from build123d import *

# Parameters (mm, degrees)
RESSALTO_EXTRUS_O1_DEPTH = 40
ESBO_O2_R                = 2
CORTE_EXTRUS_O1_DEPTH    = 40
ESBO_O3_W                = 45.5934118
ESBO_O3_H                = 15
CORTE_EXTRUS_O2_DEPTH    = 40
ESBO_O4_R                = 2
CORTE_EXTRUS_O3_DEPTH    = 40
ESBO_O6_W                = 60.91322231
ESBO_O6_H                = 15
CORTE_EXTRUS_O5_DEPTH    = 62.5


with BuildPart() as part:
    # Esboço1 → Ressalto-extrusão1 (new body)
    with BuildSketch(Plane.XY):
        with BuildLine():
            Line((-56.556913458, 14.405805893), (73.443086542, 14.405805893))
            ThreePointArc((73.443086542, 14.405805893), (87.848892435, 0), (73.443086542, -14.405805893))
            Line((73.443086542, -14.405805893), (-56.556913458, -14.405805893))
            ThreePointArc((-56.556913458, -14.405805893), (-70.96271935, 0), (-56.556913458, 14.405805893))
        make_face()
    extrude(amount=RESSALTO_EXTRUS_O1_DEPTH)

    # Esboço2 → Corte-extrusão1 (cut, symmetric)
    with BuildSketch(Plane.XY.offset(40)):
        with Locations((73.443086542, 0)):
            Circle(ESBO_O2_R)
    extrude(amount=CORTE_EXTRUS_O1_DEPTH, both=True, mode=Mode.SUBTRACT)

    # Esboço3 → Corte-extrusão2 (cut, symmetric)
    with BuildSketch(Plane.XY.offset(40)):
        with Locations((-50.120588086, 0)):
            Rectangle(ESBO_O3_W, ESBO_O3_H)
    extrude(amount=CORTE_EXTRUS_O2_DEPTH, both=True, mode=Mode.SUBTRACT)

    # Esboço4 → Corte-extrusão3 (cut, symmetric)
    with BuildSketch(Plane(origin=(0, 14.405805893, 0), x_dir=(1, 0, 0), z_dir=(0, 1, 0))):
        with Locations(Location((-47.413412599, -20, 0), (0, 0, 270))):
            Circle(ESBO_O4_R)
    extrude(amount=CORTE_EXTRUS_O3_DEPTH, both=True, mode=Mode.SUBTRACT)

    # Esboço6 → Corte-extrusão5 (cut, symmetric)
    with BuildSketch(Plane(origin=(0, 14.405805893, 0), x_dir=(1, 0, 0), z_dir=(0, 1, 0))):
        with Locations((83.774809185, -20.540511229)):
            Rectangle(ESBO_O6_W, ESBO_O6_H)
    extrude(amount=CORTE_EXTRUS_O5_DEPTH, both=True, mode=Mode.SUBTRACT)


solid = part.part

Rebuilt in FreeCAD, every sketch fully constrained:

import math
import FreeCAD as App
import Part
import Sketcher

doc = App.newDocument("Part")
params = doc.addObject("Spreadsheet::Sheet", "Params")
for row, (alias, value) in enumerate([
    ("sketch1_width", "130 mm"),
    ("pad1_length", "40 mm"),
    ("sketch2_diameter", "4 mm"),
    ("pocket1_length", "80 mm"),
    ("sketch3_height", "15 mm"),
    ("pocket2_length", "80 mm"),
    ("sketch4_diameter", "4 mm"),
    ("pocket3_length", "80 mm"),
    ("sketch5_height", "15 mm"),
    ("pocket4_length", "125 mm"),
], start=1):
    params.set(f"A{row}", alias)
    params.set(f"B{row}", "=" + value)
    params.setAlias(f"B{row}", alias)

body = doc.addObject("PartDesign::Body", "Body")

# Sketch on XY plane
sketch1 = body.newObject("Sketcher::SketchObject", "Sketch")
sketch1.AttachmentSupport = (doc.getObject("XY_Plane"), [""])
sketch1.MapMode = "FlatFace"
sketch1.addGeometry(Part.LineSegment(App.Vector(73, 14, 0), App.Vector(-57, 14, 0)), False)
sketch1.addGeometry(Part.ArcOfCircle(Part.Circle(App.Vector(-57, 0, 0), App.Vector(0, 0, 1), 14), math.radians(90), math.radians(270)), False)
sketch1.addGeometry(Part.LineSegment(App.Vector(-57, -14, 0), App.Vector(73, -14, 0)), False)
sketch1.addGeometry(Part.ArcOfCircle(Part.Circle(App.Vector(73, 0, 0), App.Vector(0, 0, 1), 14), math.radians(-90), math.radians(90)), False)
sketch1.addConstraint(Sketcher.Constraint("Tangent", 0, 2, 1, 1))
sketch1.addConstraint(Sketcher.Constraint("Tangent", 1, 2, 2, 1))
sketch1.addConstraint(Sketcher.Constraint("Tangent", 2, 2, 3, 1))
sketch1.addConstraint(Sketcher.Constraint("Tangent", 3, 2, 0, 1))
sketch1.addConstraint(Sketcher.Constraint("Horizontal", 0))
sketch1.addConstraint(Sketcher.Constraint("Horizontal", 2))
sketch1.addConstraint(Sketcher.Constraint("PointOnObject", 1, 3, -1))
sketch1.addConstraint(Sketcher.Constraint("DistanceX", 0, 2, 0, 1, 130.0))
sketch1.addConstraint(Sketcher.Constraint("Radius", 1, 14.405806))
sketch1.addConstraint(Sketcher.Constraint("DistanceX", 1, 3, -1, 1, 56.556913))
sketch1.setExpression("Constraints[7]", "Params.sketch1_width")
pad1 = body.newObject("PartDesign::Pad", "Pad")
pad1.Profile = sketch1
pad1.setExpression("Length", "Params.pad1_length")

# Sketch on XY plane
sketch2 = body.newObject("Sketcher::SketchObject", "Sketch001")
sketch2.AttachmentSupport = (doc.getObject("XY_Plane"), [""])
sketch2.MapMode = "FlatFace"
sketch2.AttachmentOffset = App.Placement(App.Vector(0, 0, 40), App.Rotation())
sketch2.addGeometry(Part.Circle(App.Vector(73.4, 0, 0), App.Vector(0, 0, 1), 2), False)
sketch2.addConstraint(Sketcher.Constraint("PointOnObject", 0, 3, -1))
sketch2.addConstraint(Sketcher.Constraint("Diameter", 0, 4.0))
sketch2.addConstraint(Sketcher.Constraint("DistanceX", -1, 1, 0, 3, 73.443087))
sketch2.setExpression("Constraints[1]", "Params.sketch2_diameter")
pocket1 = body.newObject("PartDesign::Pocket", "Pocket")
pocket1.Profile = sketch2
pocket1.setExpression("Length", "Params.pocket1_length")
pocket1.Midplane = True

# Sketch on XY plane
sketch3 = body.newObject("Sketcher::SketchObject", "Sketch002")
sketch3.AttachmentSupport = (doc.getObject("XY_Plane"), [""])
sketch3.MapMode = "FlatFace"
sketch3.AttachmentOffset = App.Placement(App.Vector(0, 0, 40), App.Rotation())
sketch3.addGeometry(Part.LineSegment(App.Vector(-73, 8, 0), App.Vector(-73, -8, 0)), False)
sketch3.addGeometry(Part.LineSegment(App.Vector(-73, -8, 0), App.Vector(-27, -8, 0)), False)
sketch3.addGeometry(Part.LineSegment(App.Vector(-27, -8, 0), App.Vector(-27, 8, 0)), False)
sketch3.addGeometry(Part.LineSegment(App.Vector(-27, 8, 0), App.Vector(-73, 8, 0)), False)
sketch3.addConstraint(Sketcher.Constraint("Coincident", 0, 2, 1, 1))
sketch3.addConstraint(Sketcher.Constraint("Coincident", 1, 2, 2, 1))
sketch3.addConstraint(Sketcher.Constraint("Coincident", 2, 2, 3, 1))
sketch3.addConstraint(Sketcher.Constraint("Coincident", 3, 2, 0, 1))
sketch3.addConstraint(Sketcher.Constraint("Vertical", 0))
sketch3.addConstraint(Sketcher.Constraint("Horizontal", 1))
sketch3.addConstraint(Sketcher.Constraint("Vertical", 2))
sketch3.addConstraint(Sketcher.Constraint("Horizontal", 3))
sketch3.addConstraint(Sketcher.Constraint("DistanceY", 0, 2, 0, 1, 15.0))
sketch3.addConstraint(Sketcher.Constraint("DistanceY", 0, 2, -1, 1, 7.5))
sketch3.addConstraint(Sketcher.Constraint("DistanceX", 1, 1, 1, 2, 45.593412))
sketch3.addConstraint(Sketcher.Constraint("DistanceX", 0, 2, -1, 1, 72.917294))
sketch3.setExpression("Constraints[8]", "Params.sketch3_height")
pocket2 = body.newObject("PartDesign::Pocket", "Pocket001")
pocket2.Profile = sketch3
pocket2.setExpression("Length", "Params.pocket2_length")
pocket2.Midplane = True

# Sketch on XZ plane
sketch4 = body.newObject("Sketcher::SketchObject", "Sketch003")
sketch4.AttachmentSupport = (doc.getObject("XZ_Plane"), [""])
sketch4.MapMode = "FlatFace"
sketch4.AttachmentOffset = App.Placement(App.Vector(0, 0, -14.405806), App.Rotation())
sketch4.addGeometry(Part.Circle(App.Vector(-47.4, 20, 0), App.Vector(0, 0, 1), 2), False)
sketch4.addConstraint(Sketcher.Constraint("Diameter", 0, 4.0))
sketch4.addConstraint(Sketcher.Constraint("DistanceY", -1, 1, 0, 3, 20.0))
sketch4.addConstraint(Sketcher.Constraint("DistanceX", 0, 3, -1, 1, 47.413413))
sketch4.setExpression("Constraints[0]", "Params.sketch4_diameter")
pocket3 = body.newObject("PartDesign::Pocket", "Pocket002")
pocket3.Profile = sketch4
pocket3.setExpression("Length", "Params.pocket3_length")
pocket3.Midplane = True

# Sketch on XZ plane
sketch5 = body.newObject("Sketcher::SketchObject", "Sketch004")
sketch5.AttachmentSupport = (doc.getObject("XZ_Plane"), [""])
sketch5.MapMode = "FlatFace"
sketch5.AttachmentOffset = App.Placement(App.Vector(0, 0, -14.405806), App.Rotation())
sketch5.addGeometry(Part.LineSegment(App.Vector(53, 13, 0), App.Vector(53, 28, 0)), False)
sketch5.addGeometry(Part.LineSegment(App.Vector(53, 28, 0), App.Vector(114, 28, 0)), False)
sketch5.addGeometry(Part.LineSegment(App.Vector(114, 28, 0), App.Vector(114, 13, 0)), False)
sketch5.addGeometry(Part.LineSegment(App.Vector(114, 13, 0), App.Vector(53, 13, 0)), False)
sketch5.addConstraint(Sketcher.Constraint("Coincident", 0, 2, 1, 1))
sketch5.addConstraint(Sketcher.Constraint("Coincident", 1, 2, 2, 1))
sketch5.addConstraint(Sketcher.Constraint("Coincident", 2, 2, 3, 1))
sketch5.addConstraint(Sketcher.Constraint("Coincident", 3, 2, 0, 1))
sketch5.addConstraint(Sketcher.Constraint("Vertical", 0))
sketch5.addConstraint(Sketcher.Constraint("Horizontal", 1))
sketch5.addConstraint(Sketcher.Constraint("Vertical", 2))
sketch5.addConstraint(Sketcher.Constraint("Horizontal", 3))
sketch5.addConstraint(Sketcher.Constraint("DistanceY", 0, 1, 0, 2, 15.0))
sketch5.addConstraint(Sketcher.Constraint("DistanceX", -1, 1, 0, 2, 53.318198))
sketch5.addConstraint(Sketcher.Constraint("DistanceX", 1, 1, 1, 2, 60.913222))
sketch5.addConstraint(Sketcher.Constraint("DistanceY", -1, 1, 0, 2, 28.040511))
sketch5.setExpression("Constraints[8]", "Params.sketch5_height")
pocket4 = body.newObject("PartDesign::Pocket", "Pocket003")
pocket4.Profile = sketch5
pocket4.setExpression("Length", "Params.pocket4_length")
pocket4.Midplane = True

doc.recompute()
